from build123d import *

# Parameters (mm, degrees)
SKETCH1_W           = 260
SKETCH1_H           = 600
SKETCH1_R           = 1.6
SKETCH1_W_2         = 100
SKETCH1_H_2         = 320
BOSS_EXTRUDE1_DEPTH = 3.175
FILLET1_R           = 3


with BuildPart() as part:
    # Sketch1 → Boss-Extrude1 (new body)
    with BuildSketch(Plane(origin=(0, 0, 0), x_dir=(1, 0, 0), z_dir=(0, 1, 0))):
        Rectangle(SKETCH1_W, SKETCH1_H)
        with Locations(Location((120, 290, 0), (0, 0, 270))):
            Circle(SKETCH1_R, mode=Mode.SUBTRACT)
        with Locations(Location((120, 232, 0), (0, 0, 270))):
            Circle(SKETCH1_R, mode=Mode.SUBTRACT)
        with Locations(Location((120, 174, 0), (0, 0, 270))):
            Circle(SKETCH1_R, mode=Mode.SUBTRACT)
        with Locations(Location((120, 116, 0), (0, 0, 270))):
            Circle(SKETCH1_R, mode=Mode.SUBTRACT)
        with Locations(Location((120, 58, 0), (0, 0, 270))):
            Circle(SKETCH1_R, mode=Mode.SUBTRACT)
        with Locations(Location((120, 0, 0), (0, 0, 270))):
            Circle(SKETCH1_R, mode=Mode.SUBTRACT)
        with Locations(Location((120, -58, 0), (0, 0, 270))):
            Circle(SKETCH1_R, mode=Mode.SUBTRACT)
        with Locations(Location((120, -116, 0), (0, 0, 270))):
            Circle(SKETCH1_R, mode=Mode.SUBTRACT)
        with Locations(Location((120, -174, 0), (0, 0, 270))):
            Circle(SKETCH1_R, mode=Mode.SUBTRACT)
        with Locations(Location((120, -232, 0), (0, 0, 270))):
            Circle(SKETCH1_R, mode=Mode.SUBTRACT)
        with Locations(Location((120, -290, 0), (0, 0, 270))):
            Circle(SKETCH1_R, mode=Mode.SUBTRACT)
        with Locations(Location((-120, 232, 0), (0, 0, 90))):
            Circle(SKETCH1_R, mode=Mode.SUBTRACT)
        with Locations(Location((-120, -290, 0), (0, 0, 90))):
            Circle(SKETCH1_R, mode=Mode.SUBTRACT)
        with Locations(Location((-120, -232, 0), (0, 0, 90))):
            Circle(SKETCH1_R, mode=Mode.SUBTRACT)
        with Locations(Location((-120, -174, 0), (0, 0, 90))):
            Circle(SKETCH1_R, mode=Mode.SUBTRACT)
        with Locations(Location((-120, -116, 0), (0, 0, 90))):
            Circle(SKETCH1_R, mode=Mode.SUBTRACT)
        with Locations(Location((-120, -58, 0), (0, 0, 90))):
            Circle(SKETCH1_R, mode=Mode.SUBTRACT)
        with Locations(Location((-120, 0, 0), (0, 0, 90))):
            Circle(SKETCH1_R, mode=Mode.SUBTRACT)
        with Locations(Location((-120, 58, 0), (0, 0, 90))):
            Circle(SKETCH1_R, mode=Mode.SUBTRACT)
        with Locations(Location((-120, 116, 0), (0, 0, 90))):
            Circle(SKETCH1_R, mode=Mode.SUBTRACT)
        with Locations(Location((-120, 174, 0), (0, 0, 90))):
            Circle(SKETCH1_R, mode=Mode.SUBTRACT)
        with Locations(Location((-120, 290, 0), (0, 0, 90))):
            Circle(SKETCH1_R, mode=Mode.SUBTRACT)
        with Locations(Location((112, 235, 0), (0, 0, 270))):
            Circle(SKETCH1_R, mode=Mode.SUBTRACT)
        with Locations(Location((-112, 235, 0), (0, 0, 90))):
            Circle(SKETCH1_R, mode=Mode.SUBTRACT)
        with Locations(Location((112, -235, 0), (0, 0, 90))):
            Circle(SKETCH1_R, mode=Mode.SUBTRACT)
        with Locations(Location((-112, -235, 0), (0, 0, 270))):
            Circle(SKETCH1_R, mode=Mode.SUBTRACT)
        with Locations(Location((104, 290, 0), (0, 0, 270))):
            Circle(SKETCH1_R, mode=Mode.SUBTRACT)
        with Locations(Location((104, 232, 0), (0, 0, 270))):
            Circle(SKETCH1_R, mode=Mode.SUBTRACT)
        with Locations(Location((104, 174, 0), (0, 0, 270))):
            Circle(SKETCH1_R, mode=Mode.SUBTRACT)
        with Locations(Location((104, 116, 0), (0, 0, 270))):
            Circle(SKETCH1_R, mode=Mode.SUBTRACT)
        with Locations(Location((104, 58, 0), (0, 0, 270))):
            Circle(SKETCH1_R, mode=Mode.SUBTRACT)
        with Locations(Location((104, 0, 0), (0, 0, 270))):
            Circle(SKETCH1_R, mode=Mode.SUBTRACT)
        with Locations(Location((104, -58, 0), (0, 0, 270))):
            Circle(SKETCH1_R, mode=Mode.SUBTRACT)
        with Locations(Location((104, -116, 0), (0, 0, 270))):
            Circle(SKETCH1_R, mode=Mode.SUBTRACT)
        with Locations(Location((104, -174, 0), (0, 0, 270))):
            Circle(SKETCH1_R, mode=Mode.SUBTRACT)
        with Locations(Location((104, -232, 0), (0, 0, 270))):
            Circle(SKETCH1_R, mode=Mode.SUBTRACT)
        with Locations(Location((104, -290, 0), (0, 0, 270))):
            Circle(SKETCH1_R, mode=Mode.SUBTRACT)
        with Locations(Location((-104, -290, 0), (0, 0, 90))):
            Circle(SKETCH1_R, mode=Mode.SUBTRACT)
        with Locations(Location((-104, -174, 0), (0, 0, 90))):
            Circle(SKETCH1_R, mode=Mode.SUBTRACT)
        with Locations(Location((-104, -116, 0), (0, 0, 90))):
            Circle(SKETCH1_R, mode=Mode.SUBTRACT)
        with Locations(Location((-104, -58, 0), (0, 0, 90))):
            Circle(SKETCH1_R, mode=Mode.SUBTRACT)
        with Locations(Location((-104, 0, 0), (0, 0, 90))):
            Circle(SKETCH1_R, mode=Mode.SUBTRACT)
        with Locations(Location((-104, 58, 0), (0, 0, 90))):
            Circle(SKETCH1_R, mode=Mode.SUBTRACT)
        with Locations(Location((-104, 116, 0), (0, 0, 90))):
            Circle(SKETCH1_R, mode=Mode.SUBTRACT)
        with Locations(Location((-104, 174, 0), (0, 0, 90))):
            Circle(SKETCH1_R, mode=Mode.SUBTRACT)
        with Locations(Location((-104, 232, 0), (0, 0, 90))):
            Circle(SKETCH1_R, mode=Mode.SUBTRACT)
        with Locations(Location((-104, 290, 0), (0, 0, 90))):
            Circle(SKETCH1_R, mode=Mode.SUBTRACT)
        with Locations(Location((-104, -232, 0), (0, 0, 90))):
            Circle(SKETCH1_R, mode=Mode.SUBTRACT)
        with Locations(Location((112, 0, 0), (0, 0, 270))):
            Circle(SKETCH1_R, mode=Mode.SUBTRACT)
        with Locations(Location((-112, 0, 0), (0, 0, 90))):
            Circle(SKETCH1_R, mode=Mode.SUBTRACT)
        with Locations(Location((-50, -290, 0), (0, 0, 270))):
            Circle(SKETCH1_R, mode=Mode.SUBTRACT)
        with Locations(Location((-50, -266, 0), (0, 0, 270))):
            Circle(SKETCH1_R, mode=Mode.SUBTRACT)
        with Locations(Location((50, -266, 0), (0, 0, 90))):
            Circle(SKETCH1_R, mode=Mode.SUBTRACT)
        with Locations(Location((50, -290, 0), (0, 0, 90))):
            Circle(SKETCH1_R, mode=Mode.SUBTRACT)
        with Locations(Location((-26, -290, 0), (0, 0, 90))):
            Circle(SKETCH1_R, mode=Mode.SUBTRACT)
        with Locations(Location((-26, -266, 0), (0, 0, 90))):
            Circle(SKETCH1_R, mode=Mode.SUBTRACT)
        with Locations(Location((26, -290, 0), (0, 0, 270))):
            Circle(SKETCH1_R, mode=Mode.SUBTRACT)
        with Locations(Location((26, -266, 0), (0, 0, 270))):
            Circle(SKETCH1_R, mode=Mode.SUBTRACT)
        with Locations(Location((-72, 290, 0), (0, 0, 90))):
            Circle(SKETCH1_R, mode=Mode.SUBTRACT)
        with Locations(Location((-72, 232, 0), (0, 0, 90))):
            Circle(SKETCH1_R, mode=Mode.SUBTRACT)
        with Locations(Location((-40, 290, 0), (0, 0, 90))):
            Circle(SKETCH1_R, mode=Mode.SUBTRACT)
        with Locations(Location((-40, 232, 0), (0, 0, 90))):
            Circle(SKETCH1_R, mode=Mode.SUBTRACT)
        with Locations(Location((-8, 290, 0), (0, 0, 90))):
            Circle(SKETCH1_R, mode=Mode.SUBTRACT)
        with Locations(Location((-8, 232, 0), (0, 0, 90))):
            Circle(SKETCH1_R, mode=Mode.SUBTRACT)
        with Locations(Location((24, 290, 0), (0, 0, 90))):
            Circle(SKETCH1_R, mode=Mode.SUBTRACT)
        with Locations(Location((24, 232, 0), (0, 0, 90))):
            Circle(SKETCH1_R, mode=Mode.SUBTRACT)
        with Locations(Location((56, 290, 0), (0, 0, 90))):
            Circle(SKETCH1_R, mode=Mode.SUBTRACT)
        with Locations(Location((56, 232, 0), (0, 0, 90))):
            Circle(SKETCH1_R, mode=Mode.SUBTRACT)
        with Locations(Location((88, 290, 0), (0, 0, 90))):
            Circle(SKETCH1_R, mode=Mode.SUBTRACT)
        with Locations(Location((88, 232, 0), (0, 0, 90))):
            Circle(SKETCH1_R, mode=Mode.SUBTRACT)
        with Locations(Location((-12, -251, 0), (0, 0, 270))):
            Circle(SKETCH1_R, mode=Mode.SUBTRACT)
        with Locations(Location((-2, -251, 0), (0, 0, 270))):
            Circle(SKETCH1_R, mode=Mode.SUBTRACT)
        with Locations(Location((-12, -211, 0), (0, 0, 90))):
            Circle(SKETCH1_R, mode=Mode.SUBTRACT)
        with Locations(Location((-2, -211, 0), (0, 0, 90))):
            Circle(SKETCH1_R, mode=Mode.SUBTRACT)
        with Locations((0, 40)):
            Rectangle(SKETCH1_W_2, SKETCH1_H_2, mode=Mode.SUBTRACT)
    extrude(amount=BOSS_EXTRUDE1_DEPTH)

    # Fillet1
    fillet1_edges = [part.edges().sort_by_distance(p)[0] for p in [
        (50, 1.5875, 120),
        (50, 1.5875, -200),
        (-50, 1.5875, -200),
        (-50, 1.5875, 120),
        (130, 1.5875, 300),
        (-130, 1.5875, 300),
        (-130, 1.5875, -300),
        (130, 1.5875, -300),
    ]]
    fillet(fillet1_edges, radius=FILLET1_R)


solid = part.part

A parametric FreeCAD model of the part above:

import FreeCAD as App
import Part
import Sketcher
from FreeCAD import Vector


def edges_at(feature, points):
    """Names of the edges that pass closest to the given points."""
    edges = feature.Shape.Edges
    near = lambda p: min(range(len(edges)), key=lambda i: edges[i].distToShape(Part.Vertex(*p))[0])
    return sorted({f"Edge{near(p) + 1}" for p in points})

doc = App.newDocument("Part")
body = doc.addObject("PartDesign::Body", "Body")

sketch1 = body.newObject("Sketcher::SketchObject", "Sketch")
sketch1.AttachmentSupport = (doc.getObject("XZ_Plane"), [""])
sketch1.MapMode = "FlatFace"
sketch1.addGeometry(Part.LineSegment(Vector(-130, -300, 0), Vector(-130, 300, 0)), False)
sketch1.addGeometry(Part.LineSegment(Vector(-130, 300, 0), Vector(130, 300, 0)), False)
sketch1.addGeometry(Part.LineSegment(Vector(130, 300, 0), Vector(130, -300, 0)), False)
sketch1.addGeometry(Part.LineSegment(Vector(130, -300, 0), Vector(-130, -300, 0)), False)
sketch1.addGeometry(Part.Circle(Vector(-120, 290, 0), Vector(0, 0, 1), 1.6), False)
sketch1.addGeometry(Part.Circle(Vector(-104, 290, 0), Vector(0, 0, 1), 1.6), False)
sketch1.addGeometry(Part.Circle(Vector(-120, 232, 0), Vector(0, 0, 1), 1.6), False)
sketch1.addGeometry(Part.Circle(Vector(-112, 235, 0), Vector(0, 0, 1), 1.6), False)
sketch1.addGeometry(Part.Circle(Vector(-104, 232, 0), Vector(0, 0, 1), 1.6), False)
sketch1.addGeometry(Part.Circle(Vector(-120, 174, 0), Vector(0, 0, 1), 1.6), False)
sketch1.addGeometry(Part.Circle(Vector(-104, 174, 0), Vector(0, 0, 1), 1.6), False)
sketch1.addGeometry(Part.Circle(Vector(-50, 290, 0), Vector(0, 0, 1), 1.6), False)
sketch1.addGeometry(Part.Circle(Vector(-50, 266, 0), Vector(0, 0, 1), 1.6), False)
sketch1.addGeometry(Part.Circle(Vector(-26, 290, 0), Vector(0, 0, 1), 1.6), False)
sketch1.addGeometry(Part.Circle(Vector(-26, 266, 0), Vector(0, 0, 1), 1.6), False)
sketch1.addGeometry(Part.Circle(Vector(-12, 251, 0), Vector(0, 0, 1), 1.6), False)
sketch1.addGeometry(Part.Circle(Vector(-2, 251, 0), Vector(0, 0, 1), 1.6), False)
sketch1.addGeometry(Part.Circle(Vector(-12, 211, 0), Vector(0, 0, 1), 1.6), False)
sketch1.addGeometry(Part.Circle(Vector(-2, 211, 0), Vector(0, 0, 1), 1.6), False)
sketch1.addGeometry(Part.Circle(Vector(-120, 116, 0), Vector(0, 0, 1), 1.6), False)
sketch1.addGeometry(Part.Circle(Vector(-104, 116, 0), Vector(0, 0, 1), 1.6), False)
sketch1.addGeometry(Part.Circle(Vector(-120, 58, 0), Vector(0, 0, 1), 1.6), False)
sketch1.addGeometry(Part.Circle(Vector(-104, 58, 0), Vector(0, 0, 1), 1.6), False)
sketch1.addGeometry(Part.Circle(Vector(26, 290, 0), Vector(0, 0, 1), 1.6), False)
sketch1.addGeometry(Part.Circle(Vector(26, 266, 0), Vector(0, 0, 1), 1.6), False)
sketch1.addGeometry(Part.Circle(Vector(50, 290, 0), Vector(0, 0, 1), 1.6), False)
sketch1.addGeometry(Part.Circle(Vector(50, 266, 0), Vector(0, 0, 1), 1.6), False)
sketch1.addGeometry(Part.Circle(Vector(104, 290, 0), Vector(0, 0, 1), 1.6), False)
sketch1.addGeometry(Part.Circle(Vector(120, 290, 0), Vector(0, 0, 1), 1.6), False)
sketch1.addGeometry(Part.Circle(Vector(104, 232, 0), Vector(0, 0, 1), 1.6), False)
sketch1.addGeometry(Part.Circle(Vector(112, 235, 0), Vector(0, 0, 1), 1.6), False)
sketch1.addGeometry(Part.Circle(Vector(120, 232, 0), Vector(0, 0, 1), 1.6), False)
sketch1.addGeometry(Part.Circle(Vector(104, 174, 0), Vector(0, 0, 1), 1.6), False)
sketch1.addGeometry(Part.Circle(Vector(120, 174, 0), Vector(0, 0, 1), 1.6), False)
sketch1.addGeometry(Part.Circle(Vector(104, 116, 0), Vector(0, 0, 1), 1.6), False)
sketch1.addGeometry(Part.Circle(Vector(120, 116, 0), Vector(0, 0, 1), 1.6), False)
sketch1.addGeometry(Part.Circle(Vector(104, 58, 0), Vector(0, 0, 1), 1.6), False)
sketch1.addGeometry(Part.Circle(Vector(120, 58, 0), Vector(0, 0, 1), 1.6), False)
sketch1.addGeometry(Part.Circle(Vector(-120, 0, 0), Vector(0, 0, 1), 1.6), False)
sketch1.addGeometry(Part.Circle(Vector(-112, 0, 0), Vector(0, 0, 1), 1.6), False)
sketch1.addGeometry(Part.Circle(Vector(-104, 0, 0), Vector(0, 0, 1), 1.6), False)
sketch1.addGeometry(Part.Circle(Vector(-120, -58, 0), Vector(0, 0, 1), 1.6), False)
sketch1.addGeometry(Part.Circle(Vector(-104, -58, 0), Vector(0, 0, 1), 1.6), False)
sketch1.addGeometry(Part.Circle(Vector(-120, -116, 0), Vector(0, 0, 1), 1.6), False)
sketch1.addGeometry(Part.Circle(Vector(-104, -116, 0), Vector(0, 0, 1), 1.6), False)
sketch1.addGeometry(Part.LineSegment(Vector(50, 120, 0), Vector(-50, 120, 0)), False)
sketch1.addGeometry(Part.LineSegment(Vector(-50, 120, 0), Vector(-50, -200, 0)), False)
sketch1.addGeometry(Part.LineSegment(Vector(-50, -200, 0), Vector(50, -200, 0)), False)
sketch1.addGeometry(Part.LineSegment(Vector(50, -200, 0), Vector(50, 120, 0)), False)
sketch1.addGeometry(Part.Circle(Vector(-120, -174, 0), Vector(0, 0, 1), 1.6), False)
sketch1.addGeometry(Part.Circle(Vector(-104, -174, 0), Vector(0, 0, 1), 1.6), False)
sketch1.addGeometry(Part.Circle(Vector(-120, -232, 0), Vector(0, 0, 1), 1.6), False)
sketch1.addGeometry(Part.Circle(Vector(-112, -235, 0), Vector(0, 0, 1), 1.6), False)
sketch1.addGeometry(Part.Circle(Vector(-104, -232, 0), Vector(0, 0, 1), 1.6), False)
sketch1.addGeometry(Part.Circle(Vector(-120, -290, 0), Vector(0, 0, 1), 1.6), False)
sketch1.addGeometry(Part.Circle(Vector(-104, -290, 0), Vector(0, 0, 1), 1.6), False)
sketch1.addGeometry(Part.Circle(Vector(-72, -232, 0), Vector(0, 0, 1), 1.6), False)
sketch1.addGeometry(Part.Circle(Vector(-72, -290, 0), Vector(0, 0, 1), 1.6), False)
sketch1.addGeometry(Part.Circle(Vector(-40, -232, 0), Vector(0, 0, 1), 1.6), False)
sketch1.addGeometry(Part.Circle(Vector(-40, -290, 0), Vector(0, 0, 1), 1.6), False)
sketch1.addGeometry(Part.Circle(Vector(-8, -232, 0), Vector(0, 0, 1), 1.6), False)
sketch1.addGeometry(Part.Circle(Vector(-8, -290, 0), Vector(0, 0, 1), 1.6), False)
sketch1.addGeometry(Part.Circle(Vector(104, 0, 0), Vector(0, 0, 1), 1.6), False)
sketch1.addGeometry(Part.Circle(Vector(112, 0, 0), Vector(0, 0, 1), 1.6), False)
sketch1.addGeometry(Part.Circle(Vector(120, 0, 0), Vector(0, 0, 1), 1.6), False)
sketch1.addGeometry(Part.Circle(Vector(104, -58, 0), Vector(0, 0, 1), 1.6), False)
sketch1.addGeometry(Part.Circle(Vector(120, -58, 0), Vector(0, 0, 1), 1.6), False)
sketch1.addGeometry(Part.Circle(Vector(104, -116, 0), Vector(0, 0, 1), 1.6), False)
sketch1.addGeometry(Part.Circle(Vector(120, -116, 0), Vector(0, 0, 1), 1.6), False)
sketch1.addGeometry(Part.Circle(Vector(24, -232, 0), Vector(0, 0, 1), 1.6), False)
sketch1.addGeometry(Part.Circle(Vector(24, -290, 0), Vector(0, 0, 1), 1.6), False)
sketch1.addGeometry(Part.Circle(Vector(56, -232, 0), Vector(0, 0, 1), 1.6), False)
sketch1.addGeometry(Part.Circle(Vector(56, -290, 0), Vector(0, 0, 1), 1.6), False)
sketch1.addGeometry(Part.Circle(Vector(104, -174, 0), Vector(0, 0, 1), 1.6), False)
sketch1.addGeometry(Part.Circle(Vector(120, -174, 0), Vector(0, 0, 1), 1.6), False)
sketch1.addGeometry(Part.Circle(Vector(88, -232, 0), Vector(0, 0, 1), 1.6), False)
sketch1.addGeometry(Part.Circle(Vector(88, -290, 0), Vector(0, 0, 1), 1.6), False)
sketch1.addGeometry(Part.Circle(Vector(104, -232, 0), Vector(0, 0, 1), 1.6), False)
sketch1.addGeometry(Part.Circle(Vector(112, -235, 0), Vector(0, 0, 1), 1.6), False)
sketch1.addGeometry(Part.Circle(Vector(120, -232, 0), Vector(0, 0, 1), 1.6), False)
sketch1.addGeometry(Part.Circle(Vector(104, -290, 0), Vector(0, 0, 1), 1.6), False)
sketch1.addGeometry(Part.Circle(Vector(120, -290, 0), Vector(0, 0, 1), 1.6), False)
sketch1.addConstraint(Sketcher.Constraint("Coincident", 0, 2, 1, 1))
sketch1.addConstraint(Sketcher.Constraint("Coincident", 1, 2, 2, 1))
sketch1.addConstraint(Sketcher.Constraint("Coincident", 2, 2, 3, 1))
sketch1.addConstraint(Sketcher.Constraint("Coincident", 3, 2, 0, 1))
sketch1.addConstraint(Sketcher.Constraint("Coincident", 45, 2, 46, 1))
sketch1.addConstraint(Sketcher.Constraint("Coincident", 46, 2, 47, 1))
sketch1.addConstraint(Sketcher.Constraint("Coincident", 47, 2, 48, 1))
sketch1.addConstraint(Sketcher.Constraint("Coincident", 48, 2, 45, 1))
sketch1.addConstraint(Sketcher.Constraint("Vertical", 0))
sketch1.addConstraint(Sketcher.Constraint("Horizontal", 1))
sketch1.addConstraint(Sketcher.Constraint("Vertical", 2))
sketch1.addConstraint(Sketcher.Constraint("Horizontal", 3))
sketch1.addConstraint(Sketcher.Constraint("Horizontal", 45))
sketch1.addConstraint(Sketcher.Constraint("Vertical", 46))
sketch1.addConstraint(Sketcher.Constraint("Horizontal", 47))
sketch1.addConstraint(Sketcher.Constraint("Vertical", 48))
sketch1.addConstraint(Sketcher.Constraint("Equal", 4, 5))
sketch1.addConstraint(Sketcher.Constraint("Equal", 5, 6))
sketch1.addConstraint(Sketcher.Constraint("Equal", 6, 7))
sketch1.addConstraint(Sketcher.Constraint("Equal", 7, 8))
sketch1.addConstraint(Sketcher.Constraint("Equal", 8, 9))
sketch1.addConstraint(Sketcher.Constraint("Equal", 9, 10))
sketch1.addConstraint(Sketcher.Constraint("Equal", 10, 11))
sketch1.addConstraint(Sketcher.Constraint("Equal", 11, 12))
sketch1.addConstraint(Sketcher.Constraint("Equal", 12, 13))
sketch1.addConstraint(Sketcher.Constraint("Equal", 13, 14))
sketch1.addConstraint(Sketcher.Constraint("Equal", 14, 15))
sketch1.addConstraint(Sketcher.Constraint("Equal", 15, 16))
sketch1.addConstraint(Sketcher.Constraint("Equal", 16, 17))
sketch1.addConstraint(Sketcher.Constraint("Equal", 17, 18))
sketch1.addConstraint(Sketcher.Constraint("Equal", 18, 19))
sketch1.addConstraint(Sketcher.Constraint("Equal", 19, 20))
sketch1.addConstraint(Sketcher.Constraint("Equal", 20, 21))
sketch1.addConstraint(Sketcher.Constraint("Equal", 21, 22))
sketch1.addConstraint(Sketcher.Constraint("Equal", 22, 23))
sketch1.addConstraint(Sketcher.Constraint("Equal", 23, 24))
sketch1.addConstraint(Sketcher.Constraint("Equal", 24, 25))
sketch1.addConstraint(Sketcher.Constraint("Equal", 25, 26))
sketch1.addConstraint(Sketcher.Constraint("Equal", 26, 27))
sketch1.addConstraint(Sketcher.Constraint("Equal", 27, 28))
sketch1.addConstraint(Sketcher.Constraint("Equal", 28, 29))
sketch1.addConstraint(Sketcher.Constraint("Equal", 29, 30))
sketch1.addConstraint(Sketcher.Constraint("Equal", 30, 31))
sketch1.addConstraint(Sketcher.Constraint("Equal", 31, 32))
sketch1.addConstraint(Sketcher.Constraint("Equal", 32, 33))
sketch1.addConstraint(Sketcher.Constraint("Equal", 33, 34))
sketch1.addConstraint(Sketcher.Constraint("Equal", 34, 35))
sketch1.addConstraint(Sketcher.Constraint("Equal", 35, 36))
sketch1.addConstraint(Sketcher.Constraint("Equal", 36, 37))
sketch1.addConstraint(Sketcher.Constraint("Equal", 37, 38))
sketch1.addConstraint(Sketcher.Constraint("Equal", 38, 39))
sketch1.addConstraint(Sketcher.Constraint("Equal", 39, 40))
sketch1.addConstraint(Sketcher.Constraint("Equal", 40, 41))
sketch1.addConstraint(Sketcher.Constraint("Equal", 41, 42))
sketch1.addConstraint(Sketcher.Constraint("Equal", 42, 43))
sketch1.addConstraint(Sketcher.Constraint("Equal", 43, 44))
sketch1.addConstraint(Sketcher.Constraint("Equal", 44, 49))
sketch1.addConstraint(Sketcher.Constraint("Equal", 49, 50))
sketch1.addConstraint(Sketcher.Constraint("Equal", 50, 51))
sketch1.addConstraint(Sketcher.Constraint("Equal", 51, 52))
sketch1.addConstraint(Sketcher.Constraint("Equal", 52, 53))
sketch1.addConstraint(Sketcher.Constraint("Equal", 53, 54))
sketch1.addConstraint(Sketcher.Constraint("Equal", 54, 55))
sketch1.addConstraint(Sketcher.Constraint("Equal", 55, 56))
sketch1.addConstraint(Sketcher.Constraint("Equal", 56, 57))
sketch1.addConstraint(Sketcher.Constraint("Equal", 57, 58))
sketch1.addConstraint(Sketcher.Constraint("Equal", 58, 59))
sketch1.addConstraint(Sketcher.Constraint("Equal", 59, 60))
sketch1.addConstraint(Sketcher.Constraint("Equal", 60, 61))
sketch1.addConstraint(Sketcher.Constraint("Equal", 61, 62))
sketch1.addConstraint(Sketcher.Constraint("Equal", 62, 63))
sketch1.addConstraint(Sketcher.Constraint("Equal", 63, 64))
sketch1.addConstraint(Sketcher.Constraint("Equal", 64, 65))
sketch1.addConstraint(Sketcher.Constraint("Equal", 65, 66))
sketch1.addConstraint(Sketcher.Constraint("Equal", 66, 67))
sketch1.addConstraint(Sketcher.Constraint("Equal", 67, 68))
sketch1.addConstraint(Sketcher.Constraint("Equal", 68, 69))
sketch1.addConstraint(Sketcher.Constraint("Equal", 69, 70))
sketch1.addConstraint(Sketcher.Constraint("Equal", 70, 71))
sketch1.addConstraint(Sketcher.Constraint("Equal", 71, 72))
sketch1.addConstraint(Sketcher.Constraint("Equal", 72, 73))
sketch1.addConstraint(Sketcher.Constraint("Equal", 73, 74))
sketch1.addConstraint(Sketcher.Constraint("Equal", 74, 75))
sketch1.addConstraint(Sketcher.Constraint("Equal", 75, 76))
sketch1.addConstraint(Sketcher.Constraint("Equal", 76, 77))
sketch1.addConstraint(Sketcher.Constraint("Equal", 77, 78))
sketch1.addConstraint(Sketcher.Constraint("Equal", 78, 79))
sketch1.addConstraint(Sketcher.Constraint("Equal", 79, 80))
sketch1.addConstraint(Sketcher.Constraint("Equal", 80, 81))
sketch1.addConstraint(Sketcher.Constraint("Symmetric", 37, 3, 41, 3, -1, 1))
sketch1.addConstraint(Sketcher.Constraint("Symmetric", 36, 3, 42, 3, -1, 1))
sketch1.addConstraint(Sketcher.Constraint("Symmetric", 35, 3, 43, 3, -1, 1))
sketch1.addConstraint(Sketcher.Constraint("Symmetric", 34, 3, 44, 3, -1, 1))
sketch1.addConstraint(Sketcher.Constraint("Symmetric", 33, 3, 49, 3, -1, 1))
sketch1.addConstraint(Sketcher.Constraint("Symmetric", 32, 3, 50, 3, -1, 1))
sketch1.addConstraint(Sketcher.Constraint("Symmetric", 31, 3, 51, 3, -1, 1))
sketch1.addConstraint(Sketcher.Constraint("Symmetric", 30, 3, 52, 3, -1, 1))
sketch1.addConstraint(Sketcher.Constraint("Symmetric", 29, 3, 53, 3, -1, 1))
sketch1.addConstraint(Sketcher.Constraint("Symmetric", 28, 3, 54, 3, -1, 1))
sketch1.addConstraint(Sketcher.Constraint("Symmetric", 27, 3, 55, 3, -1, 1))
sketch1.addConstraint(Sketcher.Constraint("Symmetric", 40, 3, 62, 3, -1, 1))
sketch1.addConstraint(Sketcher.Constraint("Symmetric", 39, 3, 63, 3, -1, 1))
sketch1.addConstraint(Sketcher.Constraint("Symmetric", 38, 3, 64, 3, -1, 1))
sketch1.addConstraint(Sketcher.Constraint("Symmetric", 22, 3, 65, 3, -1, 1))
sketch1.addConstraint(Sketcher.Constraint("Symmetric", 21, 3, 66, 3, -1, 1))
sketch1.addConstraint(Sketcher.Constraint("Symmetric", 20, 3, 67, 3, -1, 1))
sketch1.addConstraint(Sketcher.Constraint("Symmetric", 19, 3, 68, 3, -1, 1))
sketch1.addConstraint(Sketcher.Constraint("Symmetric", 10, 3, 73, 3, -1, 1))
sketch1.addConstraint(Sketcher.Constraint("Symmetric", 9, 3, 74, 3, -1, 1))
sketch1.addConstraint(Sketcher.Constraint("Symmetric", 8, 3, 77, 3, -1, 1))
sketch1.addConstraint(Sketcher.Constraint("Symmetric", 7, 3, 78, 3, -1, 1))
sketch1.addConstraint(Sketcher.Constraint("Symmetric", 6, 3, 79, 3, -1, 1))
sketch1.addConstraint(Sketcher.Constraint("Symmetric", 5, 3, 80, 3, -1, 1))
sketch1.addConstraint(Sketcher.Constraint("Symmetric", 4, 3, 81, 3, -1, 1))
sketch1.addConstraint(Sketcher.Constraint("Symmetric", 0, 2, 2, 2, -1, 1))
sketch1.addConstraint(Sketcher.Constraint("Symmetric", 13, 3, 23, 3, -2))
sketch1.addConstraint(Sketcher.Constraint("Symmetric", 14, 3, 24, 3, -2))
sketch1.addConstraint(Sketcher.Constraint("Symmetric", 11, 3, 25, 3, -2))
sketch1.addConstraint(Sketcher.Constraint("Symmetric", 12, 3, 26, 3, -2))
sketch1.addConstraint(Sketcher.Constraint("Symmetric", 5, 3, 27, 3, -2))
sketch1.addConstraint(Sketcher.Constraint("Symmetric", 4, 3, 28, 3, -2))
sketch1.addConstraint(Sketcher.Constraint("Symmetric", 8, 3, 29, 3, -2))
sketch1.addConstraint(Sketcher.Constraint("Symmetric", 7, 3, 30, 3, -2))
sketch1.addConstraint(Sketcher.Constraint("Symmetric", 6, 3, 31, 3, -2))
sketch1.addConstraint(Sketcher.Constraint("Symmetric", 10, 3, 32, 3, -2))
sketch1.addConstraint(Sketcher.Constraint("Symmetric", 9, 3, 33, 3, -2))
sketch1.addConstraint(Sketcher.Constraint("Symmetric", 20, 3, 34, 3, -2))
sketch1.addConstraint(Sketcher.Constraint("Symmetric", 19, 3, 35, 3, -2))
sketch1.addConstraint(Sketcher.Constraint("Symmetric", 22, 3, 36, 3, -2))
sketch1.addConstraint(Sketcher.Constraint("Symmetric", 21, 3, 37, 3, -2))
sketch1.addConstraint(Sketcher.Constraint("PointOnObject", 38, 3, -1))
sketch1.addConstraint(Sketcher.Constraint("PointOnObject", 39, 3, -1))
sketch1.addConstraint(Sketcher.Constraint("PointOnObject", 40, 3, -1))
sketch1.addConstraint(Sketcher.Constraint("Horizontal", 4, 3, 5, 3))
sketch1.addConstraint(Sketcher.Constraint("Horizontal", 6, 3, 8, 3))
sketch1.addConstraint(Sketcher.Constraint("Horizontal", 9, 3, 10, 3))
sketch1.addConstraint(Sketcher.Constraint("Horizontal", 5, 3, 11, 3))
sketch1.addConstraint(Sketcher.Constraint("Horizontal", 11, 3, 13, 3))
sketch1.addConstraint(Sketcher.Constraint("Horizontal", 12, 3, 14, 3))
sketch1.addConstraint(Sketcher.Constraint("Horizontal", 15, 3, 16, 3))
sketch1.addConstraint(Sketcher.Constraint("Horizontal", 17, 3, 18, 3))
sketch1.addConstraint(Sketcher.Constraint("Horizontal", 19, 3, 20, 3))
sketch1.addConstraint(Sketcher.Constraint("Horizontal", 21, 3, 22, 3))
sketch1.addConstraint(Sketcher.Constraint("Horizontal", 53, 3, 56, 3))
sketch1.addConstraint(Sketcher.Constraint("Horizontal", 55, 3, 57, 3))
sketch1.addConstraint(Sketcher.Constraint("Horizontal", 56, 3, 58, 3))
sketch1.addConstraint(Sketcher.Constraint("Horizontal", 57, 3, 59, 3))
sketch1.addConstraint(Sketcher.Constraint("Horizontal", 58, 3, 60, 3))
sketch1.addConstraint(Sketcher.Constraint("Horizontal", 59, 3, 61, 3))
sketch1.addConstraint(Sketcher.Constraint("Horizontal", 60, 3, 69, 3))
sketch1.addConstraint(Sketcher.Constraint("Horizontal", 61, 3, 70, 3))
sketch1.addConstraint(Sketcher.Constraint("Horizontal", 69, 3, 71, 3))
sketch1.addConstraint(Sketcher.Constraint("Horizontal", 70, 3, 72, 3))
sketch1.addConstraint(Sketcher.Constraint("Horizontal", 71, 3, 75, 3))
sketch1.addConstraint(Sketcher.Constraint("Horizontal", 72, 3, 76, 3))
sketch1.addConstraint(Sketcher.Constraint("Vertical", 4, 3, 6, 3))
sketch1.addConstraint(Sketcher.Constraint("Vertical", 5, 3, 8, 3))
sketch1.addConstraint(Sketcher.Constraint("Vertical", 6, 3, 9, 3))
sketch1.addConstraint(Sketcher.Constraint("Vertical", 8, 3, 10, 3))
sketch1.addConstraint(Sketcher.Constraint("Vertical", 11, 3, 12, 3))
sketch1.addConstraint(Sketcher.Constraint("Vertical", 13, 3, 14, 3))
sketch1.addConstraint(Sketcher.Constraint("Vertical", 15, 3, 17, 3))
sketch1.addConstraint(Sketcher.Constraint("Vertical", 16, 3, 18, 3))
sketch1.addConstraint(Sketcher.Constraint("Vertical", 9, 3, 19, 3))
sketch1.addConstraint(Sketcher.Constraint("Vertical", 10, 3, 20, 3))
sketch1.addConstraint(Sketcher.Constraint("Vertical", 19, 3, 21, 3))
sketch1.addConstraint(Sketcher.Constraint("Vertical", 20, 3, 22, 3))
sketch1.addConstraint(Sketcher.Constraint("Vertical", 21, 3, 38, 3))
sketch1.addConstraint(Sketcher.Constraint("Vertical", 7, 3, 39, 3))
sketch1.addConstraint(Sketcher.Constraint("Vertical", 22, 3, 40, 3))
sketch1.addConstraint(Sketcher.Constraint("Vertical", 56, 3, 57, 3))
sketch1.addConstraint(Sketcher.Constraint("Vertical", 58, 3, 59, 3))
sketch1.addConstraint(Sketcher.Constraint("Vertical", 60, 3, 61, 3))
sketch1.addConstraint(Sketcher.Constraint("Vertical", 69, 3, 70, 3))
sketch1.addConstraint(Sketcher.Constraint("Vertical", 71, 3, 72, 3))
sketch1.addConstraint(Sketcher.Constraint("Vertical", 75, 3, 76, 3))
sketch1.addConstraint(Sketcher.Constraint("Vertical", 12, 3, 45, 2))
sketch1.addConstraint(Sketcher.Constraint("Vertical", 26, 3, 47, 2))
sketch1.addConstraint(Sketcher.Constraint("Diameter", 4, 3.2))
sketch1.addConstraint(Sketcher.Constraint("DistanceX", 1, 1, 1, 2, 260.0))
sketch1.addConstraint(Sketcher.Constraint("DistanceX", 45, 2, 45, 1, 100.0))
sketch1.addConstraint(Sketcher.Constraint("DistanceY", 0, 1, 0, 2, 600.0))
sketch1.addConstraint(Sketcher.Constraint("DistanceY", 46, 2, 46, 1, 320.0))
sketch1.addConstraint(Sketcher.Constraint("DistanceX", 4, 3, -1, 1, 120.0))
sketch1.addConstraint(Sketcher.Constraint("DistanceY", -1, 1, 4, 3, 290.0))
sketch1.addConstraint(Sketcher.Constraint("DistanceX", 5, 3, -1, 1, 104.0))
sketch1.addConstraint(Sketcher.Constraint("DistanceY", -1, 1, 6, 3, 232.0))
sketch1.addConstraint(Sketcher.Constraint("DistanceX", 7, 3, -1, 1, 112.0))
sketch1.addConstraint(Sketcher.Constraint("DistanceY", -1, 1, 7, 3, 235.0))
sketch1.addConstraint(Sketcher.Constraint("DistanceY", -1, 1, 9, 3, 174.0))
sketch1.addConstraint(Sketcher.Constraint("DistanceY", -1, 1, 12, 3, 266.0))
sketch1.addConstraint(Sketcher.Constraint("DistanceX", 13, 3, -1, 1, 26.0))
sketch1.addConstraint(Sketcher.Constraint("DistanceX", 15, 3, -1, 1, 12.0))
sketch1.addConstraint(Sketcher.Constraint("DistanceY", -1, 1, 15, 3, 251.0))
sketch1.addConstraint(Sketcher.Constraint("DistanceX", 16, 3, -1, 1, 2.0))
sketch1.addConstraint(Sketcher.Constraint("DistanceY", -1, 1, 17, 3, 211.0))
sketch1.addConstraint(Sketcher.Constraint("DistanceY", -1, 1, 19, 3, 116.0))
sketch1.addConstraint(Sketcher.Constraint("DistanceY", -1, 1, 21, 3, 58.0))
sketch1.addConstraint(Sketcher.Constraint("DistanceX", 56, 3, -1, 1, 72.0))
sketch1.addConstraint(Sketcher.Constraint("DistanceX", 58, 3, -1, 1, 40.0))
sketch1.addConstraint(Sketcher.Constraint("DistanceX", 60, 3, -1, 1, 8.0))
sketch1.addConstraint(Sketcher.Constraint("DistanceX", -1, 1, 69, 3, 24.0))
sketch1.addConstraint(Sketcher.Constraint("DistanceX", -1, 1, 71, 3, 56.0))
sketch1.addConstraint(Sketcher.Constraint("DistanceX", -1, 1, 75, 3, 88.0))
sketch1.addConstraint(Sketcher.Constraint("DistanceY", -1, 1, 45, 2, 120.0))
pad1 = body.newObject("PartDesign::Pad", "Pad")
pad1.Profile = sketch1
pad1.Length = 3.175
pad1.Reversed = True
doc.recompute()

fillet = body.newObject("PartDesign::Fillet", "Fillet")
fillet.Base = (pad1, edges_at(pad1, [
    (50, 1.587, 120),
    (50, 1.587, -200),
    (-50, 1.587, -200),
    (-50, 1.587, 120),
    (130, 1.587, 300),
    (-130, 1.587, 300),
    (-130, 1.587, -300),
    (130, 1.587, -300),
]))
fillet.Radius = 3

doc.recompute()
